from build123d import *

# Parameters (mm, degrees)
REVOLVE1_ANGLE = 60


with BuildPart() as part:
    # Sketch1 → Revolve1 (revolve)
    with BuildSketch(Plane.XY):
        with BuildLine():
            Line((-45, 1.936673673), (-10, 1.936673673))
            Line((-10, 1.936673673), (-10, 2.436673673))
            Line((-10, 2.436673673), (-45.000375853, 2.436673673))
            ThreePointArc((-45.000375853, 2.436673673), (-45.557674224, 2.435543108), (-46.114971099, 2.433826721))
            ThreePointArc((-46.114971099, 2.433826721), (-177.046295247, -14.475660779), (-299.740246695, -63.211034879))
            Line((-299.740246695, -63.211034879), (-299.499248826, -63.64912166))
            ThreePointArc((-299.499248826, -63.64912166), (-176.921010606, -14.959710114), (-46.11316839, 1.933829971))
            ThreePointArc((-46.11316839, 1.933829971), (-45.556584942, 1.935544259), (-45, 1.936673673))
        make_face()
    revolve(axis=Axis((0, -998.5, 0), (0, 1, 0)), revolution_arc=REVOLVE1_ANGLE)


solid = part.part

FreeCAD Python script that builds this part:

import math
import FreeCAD as App
import Part
import Sketcher

V = App.Vector
Q = App.Units.Quantity

doc = App.newDocument("Part")
body = doc.addObject("PartDesign::Body", "Body")

# Sketch on XY plane
sketch1 = doc.addObject("Sketcher::SketchObject", "Sketch")
body.addObject(sketch1)
sketch1.AttachmentSupport = (doc.XY_Plane, [""])
sketch1.MapMode = "FlatFace"
sketch1.addGeometry([
    Part.LineSegment(V(-45, 1.9, 0), V(-10, 1.9, 0)),  # 0
    Part.LineSegment(V(-10, 1.9, 0), V(-10, 2.4, 0)),  # 1
    Part.LineSegment(V(-10, 2.4, 0), V(-45, 2.4, 0)),  # 2
    Part.ArcOfCircle(Part.Circle(V(-44.2, -527.7, 0), V(0, 0, 1), 530.2), math.radians(90.09), math.radians(90.21)),  # 3
    Part.ArcOfCircle(Part.Circle(V(-44.2, -527.7, 0), V(0, 0, 1), 530.2), math.radians(90), math.radians(119)),  # 4
    Part.LineSegment(V(-299.7, -63.2, 0), V(-299.5, -63.6, 0)),  # 5
    Part.ArcOfCircle(Part.Circle(V(-44.2, -527.7, 0), V(0, 0, 1), 529.7), math.radians(90), math.radians(119)),  # 6
    Part.ArcOfCircle(Part.Circle(V(-44.2, -527.7, 0), V(0, 0, 1), 529.7), math.radians(90.09), math.radians(90.21)),  # 7
], False)
sketch1.addConstraint([
    Sketcher.Constraint("Coincident", 0, 2, 1, 1),
    Sketcher.Constraint("Coincident", 1, 2, 2, 1),
    Sketcher.Constraint("Coincident", 2, 2, 3, 1),
    Sketcher.Constraint("Coincident", 3, 2, 4, 1),
    Sketcher.Constraint("Coincident", 4, 2, 5, 1),
    Sketcher.Constraint("Coincident", 5, 2, 6, 2),
    Sketcher.Constraint("Coincident", 6, 1, 7, 2),
    Sketcher.Constraint("Coincident", 7, 1, 0, 1),
    Sketcher.Constraint("Horizontal", 0),
    Sketcher.Constraint("Vertical", 1),
    Sketcher.Constraint("Horizontal", 2),
    Sketcher.Constraint("Coincident", 6, 3, 4, 3),
    Sketcher.Constraint("Vertical", 3, 3, 4, 3),
    Sketcher.Constraint("Vertical", 6, 3, 7, 3),
    Sketcher.Constraint("DistanceX", 0, 1, 0, 2, Q("35 mm")),
    Sketcher.Constraint("DistanceY", 1, 1, 1, 2, Q("0.5 mm")),
    Sketcher.Constraint("DistanceX", 0, 2, -1, 1, Q("10 mm")),
    Sketcher.Constraint("Radius", 3, Q("530.164009 mm")),
    Sketcher.Constraint("Radius", 4, Q("530.163894 mm")),
    Sketcher.Constraint("Radius", 7, Q("529.664616 mm")),
    Sketcher.Constraint("DistanceX", 2, 2, 2, 1, Q("35.000376 mm")),
    Sketcher.Constraint("DistanceX", 3, 3, -1, 1, Q("44.203509 mm")),
    Sketcher.Constraint("DistanceY", 4, 3, -1, 1, Q("527.726621 mm")),
    Sketcher.Constraint("DistanceX", 3, 2, -1, 1, Q("46.114971 mm")),
    Sketcher.Constraint("DistanceX", 5, 2, -1, 1, Q("299.499249 mm")),
    Sketcher.Constraint("DistanceX", 6, 1, -1, 1, Q("46.113168 mm")),
    Sketcher.Constraint("Angle", 5, Q("-61.184172 deg")),
])
revolution = doc.addObject("PartDesign::Revolution", "Revolution")
body.addObject(revolution)
revolution.Profile = sketch1
revolution.ReferenceAxis = (sketch1, ["V_Axis"])
revolution.Angle = 60

doc.recompute()
